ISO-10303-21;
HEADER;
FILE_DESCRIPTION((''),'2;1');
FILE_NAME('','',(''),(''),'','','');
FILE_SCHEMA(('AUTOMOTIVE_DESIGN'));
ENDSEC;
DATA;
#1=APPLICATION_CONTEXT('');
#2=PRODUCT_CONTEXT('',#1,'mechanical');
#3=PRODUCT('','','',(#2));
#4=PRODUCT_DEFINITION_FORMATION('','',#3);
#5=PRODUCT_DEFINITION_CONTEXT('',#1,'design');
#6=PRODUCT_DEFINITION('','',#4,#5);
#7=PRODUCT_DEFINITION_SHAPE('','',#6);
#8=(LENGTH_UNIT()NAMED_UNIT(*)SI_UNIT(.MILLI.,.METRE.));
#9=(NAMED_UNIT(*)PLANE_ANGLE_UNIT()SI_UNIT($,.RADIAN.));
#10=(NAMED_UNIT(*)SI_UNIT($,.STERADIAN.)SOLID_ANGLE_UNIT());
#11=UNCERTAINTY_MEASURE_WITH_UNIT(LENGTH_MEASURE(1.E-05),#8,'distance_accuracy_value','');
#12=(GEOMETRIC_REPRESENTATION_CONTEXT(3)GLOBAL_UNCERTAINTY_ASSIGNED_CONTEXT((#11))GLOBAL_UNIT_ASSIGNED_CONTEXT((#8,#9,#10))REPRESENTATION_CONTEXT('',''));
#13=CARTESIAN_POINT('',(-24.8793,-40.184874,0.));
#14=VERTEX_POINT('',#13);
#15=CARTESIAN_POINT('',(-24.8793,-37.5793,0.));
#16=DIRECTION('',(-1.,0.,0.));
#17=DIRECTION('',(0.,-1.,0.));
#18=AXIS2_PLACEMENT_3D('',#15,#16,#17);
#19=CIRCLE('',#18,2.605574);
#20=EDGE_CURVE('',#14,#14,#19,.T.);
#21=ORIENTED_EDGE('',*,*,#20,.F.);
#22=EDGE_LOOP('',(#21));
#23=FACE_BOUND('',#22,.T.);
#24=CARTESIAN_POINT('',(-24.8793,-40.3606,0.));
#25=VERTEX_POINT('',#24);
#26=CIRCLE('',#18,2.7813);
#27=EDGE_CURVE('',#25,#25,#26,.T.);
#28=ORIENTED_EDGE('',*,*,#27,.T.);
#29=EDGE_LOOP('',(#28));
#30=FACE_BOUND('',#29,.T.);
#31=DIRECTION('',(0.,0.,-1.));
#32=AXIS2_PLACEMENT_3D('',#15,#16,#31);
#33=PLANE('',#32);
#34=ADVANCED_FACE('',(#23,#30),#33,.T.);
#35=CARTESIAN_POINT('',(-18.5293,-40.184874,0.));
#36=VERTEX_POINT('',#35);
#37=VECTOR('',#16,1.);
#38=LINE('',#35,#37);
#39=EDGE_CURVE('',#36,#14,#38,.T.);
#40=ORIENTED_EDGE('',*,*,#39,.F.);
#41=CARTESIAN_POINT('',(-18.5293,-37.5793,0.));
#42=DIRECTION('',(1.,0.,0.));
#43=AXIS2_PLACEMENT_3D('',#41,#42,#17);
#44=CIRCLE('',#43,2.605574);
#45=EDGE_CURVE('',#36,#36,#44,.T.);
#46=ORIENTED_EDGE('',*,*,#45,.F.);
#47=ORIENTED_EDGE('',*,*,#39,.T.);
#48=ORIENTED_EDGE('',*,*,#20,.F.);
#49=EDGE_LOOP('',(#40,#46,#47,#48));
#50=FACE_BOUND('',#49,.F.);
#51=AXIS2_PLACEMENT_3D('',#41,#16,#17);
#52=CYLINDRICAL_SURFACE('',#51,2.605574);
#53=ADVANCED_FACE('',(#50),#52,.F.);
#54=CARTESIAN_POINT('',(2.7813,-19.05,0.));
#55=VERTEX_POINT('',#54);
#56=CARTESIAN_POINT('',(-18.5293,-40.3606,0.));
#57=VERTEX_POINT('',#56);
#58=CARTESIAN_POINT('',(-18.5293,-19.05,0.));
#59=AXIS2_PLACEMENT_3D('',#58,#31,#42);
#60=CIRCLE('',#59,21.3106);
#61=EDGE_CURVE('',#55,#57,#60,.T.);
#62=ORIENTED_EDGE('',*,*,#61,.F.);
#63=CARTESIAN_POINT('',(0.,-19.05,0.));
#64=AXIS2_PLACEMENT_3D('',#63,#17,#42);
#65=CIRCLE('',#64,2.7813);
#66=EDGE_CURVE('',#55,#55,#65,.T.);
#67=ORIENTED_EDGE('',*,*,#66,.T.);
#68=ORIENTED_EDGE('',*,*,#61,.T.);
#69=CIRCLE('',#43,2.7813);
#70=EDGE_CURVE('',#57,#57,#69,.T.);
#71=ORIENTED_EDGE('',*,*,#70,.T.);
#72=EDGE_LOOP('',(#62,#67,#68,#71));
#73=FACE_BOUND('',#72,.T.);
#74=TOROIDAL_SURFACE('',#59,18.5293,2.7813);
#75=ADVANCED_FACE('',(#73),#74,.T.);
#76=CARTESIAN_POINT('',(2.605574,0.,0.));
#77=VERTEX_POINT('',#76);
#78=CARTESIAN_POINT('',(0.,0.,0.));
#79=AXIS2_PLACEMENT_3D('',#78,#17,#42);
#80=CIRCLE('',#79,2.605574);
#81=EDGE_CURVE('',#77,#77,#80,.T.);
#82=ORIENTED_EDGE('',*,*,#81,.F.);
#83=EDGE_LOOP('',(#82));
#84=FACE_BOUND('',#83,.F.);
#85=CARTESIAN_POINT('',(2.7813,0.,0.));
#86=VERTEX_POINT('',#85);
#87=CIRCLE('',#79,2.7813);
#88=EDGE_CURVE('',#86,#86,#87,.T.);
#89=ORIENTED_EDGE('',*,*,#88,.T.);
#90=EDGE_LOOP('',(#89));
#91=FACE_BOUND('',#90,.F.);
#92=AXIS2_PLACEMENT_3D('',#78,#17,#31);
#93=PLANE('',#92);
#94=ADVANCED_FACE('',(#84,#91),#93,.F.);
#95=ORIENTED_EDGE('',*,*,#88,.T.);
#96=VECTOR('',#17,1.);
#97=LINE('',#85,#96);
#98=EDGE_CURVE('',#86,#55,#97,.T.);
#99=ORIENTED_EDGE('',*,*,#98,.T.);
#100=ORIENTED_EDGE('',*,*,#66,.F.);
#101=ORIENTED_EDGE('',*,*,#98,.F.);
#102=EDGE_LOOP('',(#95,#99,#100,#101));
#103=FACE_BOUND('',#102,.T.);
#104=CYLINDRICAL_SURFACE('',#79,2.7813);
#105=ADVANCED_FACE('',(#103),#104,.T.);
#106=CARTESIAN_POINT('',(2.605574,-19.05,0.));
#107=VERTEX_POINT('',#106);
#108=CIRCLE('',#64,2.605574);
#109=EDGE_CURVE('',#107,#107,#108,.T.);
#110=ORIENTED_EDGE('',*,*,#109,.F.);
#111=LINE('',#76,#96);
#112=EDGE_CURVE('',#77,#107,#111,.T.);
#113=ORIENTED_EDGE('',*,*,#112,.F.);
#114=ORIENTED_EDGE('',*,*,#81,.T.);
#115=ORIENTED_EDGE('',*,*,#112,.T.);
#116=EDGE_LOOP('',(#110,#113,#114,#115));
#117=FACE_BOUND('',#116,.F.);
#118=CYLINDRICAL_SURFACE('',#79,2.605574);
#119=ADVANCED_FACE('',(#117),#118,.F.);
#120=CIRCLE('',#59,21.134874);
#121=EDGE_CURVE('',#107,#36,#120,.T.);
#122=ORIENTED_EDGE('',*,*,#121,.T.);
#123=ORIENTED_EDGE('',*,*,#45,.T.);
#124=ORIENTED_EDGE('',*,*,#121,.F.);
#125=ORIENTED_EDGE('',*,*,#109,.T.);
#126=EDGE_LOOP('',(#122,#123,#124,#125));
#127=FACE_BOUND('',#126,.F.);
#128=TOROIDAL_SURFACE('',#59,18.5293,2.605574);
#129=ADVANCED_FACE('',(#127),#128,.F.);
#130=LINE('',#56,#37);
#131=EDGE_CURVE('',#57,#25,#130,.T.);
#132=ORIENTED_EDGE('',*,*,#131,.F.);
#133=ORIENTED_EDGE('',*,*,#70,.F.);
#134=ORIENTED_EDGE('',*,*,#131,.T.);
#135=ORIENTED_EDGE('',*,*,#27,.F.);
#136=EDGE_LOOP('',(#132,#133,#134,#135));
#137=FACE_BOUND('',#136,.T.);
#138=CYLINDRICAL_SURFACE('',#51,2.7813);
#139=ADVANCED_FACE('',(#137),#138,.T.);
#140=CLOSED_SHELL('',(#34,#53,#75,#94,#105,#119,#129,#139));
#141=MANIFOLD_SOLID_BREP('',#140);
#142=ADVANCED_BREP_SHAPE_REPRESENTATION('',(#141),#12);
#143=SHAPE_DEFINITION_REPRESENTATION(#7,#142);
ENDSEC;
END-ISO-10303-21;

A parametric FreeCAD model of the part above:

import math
import FreeCAD as App
import Part
import Sketcher
from FreeCAD import Vector
Q = App.Units.Quantity

doc = App.newDocument("Part")
body = doc.addObject("PartDesign::Body", "Body")

# Sketch on XZ plane
sketch1 = doc.addObject("Sketcher::SketchObject", "Sketch")
body.addObject(sketch1)
sketch1.AttachmentSupport = (doc.XZ_Plane, [""])
sketch1.MapMode = "FlatFace"
sketch1.addGeometry(Part.Circle(Vector(0, 0, 0), Vector(0, 0, 1), 2.8), False)
sketch1.addConstraint([
    Sketcher.Constraint("Coincident", 0, 3, -1, 1),
    Sketcher.Constraint("Diameter", 0, Q("0.219 in")),
])

# Sketch on XY plane
sketch2 = doc.addObject("Sketcher::SketchObject", "Sketch001")
body.addObject(sketch2)
sketch2.AttachmentSupport = (doc.XY_Plane, [""])
sketch2.MapMode = "FlatFace"
sketch2.addGeometry([
    Part.LineSegment(Vector(0, 0, 0), Vector(0, -19, 0)),
    Part.ArcOfCircle(Part.Circle(Vector(-19, -19, 0), Vector(0, 0, 1), 19), math.radians(-90), math.radians(0)),
    Part.LineSegment(Vector(-19, -38, 0), Vector(-25, -38, 0)),
], False)
sketch2.addConstraint([
    Sketcher.Constraint("Tangent", 0, 2, 1, 2),
    Sketcher.Constraint("Tangent", 1, 1, 2, 1),
    Sketcher.Constraint("Vertical", 0),
    Sketcher.Constraint("Horizontal", 2),
    Sketcher.Constraint("Coincident", 0, 1, -1, 1),
    Sketcher.Constraint("DistanceX", 2, 2, 2, 1, Q("0.25 in")),
    Sketcher.Constraint("DistanceY", 0, 2, 0, 1, Q("0.75 in")),
    Sketcher.Constraint("Radius", 1, Q("0.7295 in")),
])
doc.recompute()

additivepipe = doc.addObject("PartDesign::AdditivePipe", "AdditivePipe")
body.addObject(additivepipe)
additivepipe.Profile = sketch1
additivepipe.Spine = (sketch2, ["Edge1", "Edge2", "Edge3"])

# Sketch on YZ plane
sketch3 = doc.addObject("Sketcher::SketchObject", "Sketch002")
body.addObject(sketch3)
sketch3.AttachmentSupport = (doc.YZ_Plane, [""])
sketch3.MapMode = "FlatFace"
sketch3.AttachmentOffset = App.Placement(Vector(0, 0, -0.9795 * 25.4), App.Rotation())
sketch3.addGeometry(Part.Circle(Vector(-37.6, 0, 0), Vector(0, 0, 1), 2.6), False)
sketch3.addConstraint([
    Sketcher.Constraint("PointOnObject", 0, 3, -1),
    Sketcher.Constraint("Diameter", 0, Q("5.211148 mm")),
    Sketcher.Constraint("DistanceX", 0, 3, -1, 1, Q("1.4795 in")),
])

# Sketch on XY plane
sketch4 = doc.addObject("Sketcher::SketchObject", "Sketch003")
body.addObject(sketch4)
sketch4.AttachmentSupport = (doc.XY_Plane, [""])
sketch4.MapMode = "FlatFace"
sketch4.addGeometry([
    Part.LineSegment(Vector(0, 0, 0), Vector(0, -19, 0)),
    Part.ArcOfCircle(Part.Circle(Vector(-19, -19, 0), Vector(0, 0, 1), 19), math.radians(-90), math.radians(0)),
    Part.LineSegment(Vector(-19, -38, 0), Vector(-25, -38, 0)),
], False)
sketch4.addConstraint([
    Sketcher.Constraint("Tangent", 0, 2, 1, 2),
    Sketcher.Constraint("Tangent", 1, 1, 2, 1),
    Sketcher.Constraint("Vertical", 0),
    Sketcher.Constraint("Horizontal", 2),
    Sketcher.Constraint("Coincident", 0, 1, -1, 1),
    Sketcher.Constraint("DistanceX", 2, 2, 2, 1, Q("0.25 in")),
    Sketcher.Constraint("DistanceY", 0, 2, 0, 1, Q("0.75 in")),
    Sketcher.Constraint("Radius", 1, Q("0.7295 in")),
])
doc.recompute()

subtractivepipe = doc.addObject("PartDesign::SubtractivePipe", "SubtractivePipe")
body.addObject(subtractivepipe)
subtractivepipe.Profile = sketch3
subtractivepipe.Spine = (sketch4, ["Edge1", "Edge2", "Edge3"])

doc.recompute()
